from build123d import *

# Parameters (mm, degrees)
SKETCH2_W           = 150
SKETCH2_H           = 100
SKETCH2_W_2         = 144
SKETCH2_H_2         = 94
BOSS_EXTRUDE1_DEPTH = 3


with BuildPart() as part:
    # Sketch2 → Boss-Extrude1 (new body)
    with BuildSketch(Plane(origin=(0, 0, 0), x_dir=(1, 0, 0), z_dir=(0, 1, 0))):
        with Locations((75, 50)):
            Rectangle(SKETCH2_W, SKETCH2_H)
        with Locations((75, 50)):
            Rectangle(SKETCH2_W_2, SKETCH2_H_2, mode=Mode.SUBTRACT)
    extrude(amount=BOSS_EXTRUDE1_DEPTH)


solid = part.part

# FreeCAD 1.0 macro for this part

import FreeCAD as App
import Part
import Sketcher
Q = App.Units.Quantity

doc = App.newDocument("Part")
body = doc.addObject("PartDesign::Body", "Body")

# Sketch on XZ plane
sketch1 = body.newObject("Sketcher::SketchObject", "Sketch")
sketch1.AttachmentSupport = (doc.getObject("XZ_Plane"), [""])
sketch1.MapMode = "FlatFace"
sketch1.addGeometry(Part.LineSegment(App.Vector(0, -100, 0), App.Vector(0, 0, 0)), False)
sketch1.addGeometry(Part.LineSegment(App.Vector(0, 0, 0), App.Vector(150, 0, 0)), False)
sketch1.addGeometry(Part.LineSegment(App.Vector(150, 0, 0), App.Vector(150, -100, 0)), False)
sketch1.addGeometry(Part.LineSegment(App.Vector(150, -100, 0), App.Vector(0, -100, 0)), False)
sketch1.addGeometry(Part.LineSegment(App.Vector(147, -3, 0), App.Vector(3, -3, 0)), False)
sketch1.addGeometry(Part.LineSegment(App.Vector(3, -3, 0), App.Vector(3, -97, 0)), False)
sketch1.addGeometry(Part.LineSegment(App.Vector(3, -97, 0), App.Vector(147, -97, 0)), False)
sketch1.addGeometry(Part.LineSegment(App.Vector(147, -97, 0), App.Vector(147, -3, 0)), False)
sketch1.addConstraint(Sketcher.Constraint("Coincident", 0, 2, 1, 1))
sketch1.addConstraint(Sketcher.Constraint("Coincident", 1, 2, 2, 1))
sketch1.addConstraint(Sketcher.Constraint("Coincident", 2, 2, 3, 1))
sketch1.addConstraint(Sketcher.Constraint("Coincident", 3, 2, 0, 1))
sketch1.addConstraint(Sketcher.Constraint("Coincident", 4, 2, 5, 1))
sketch1.addConstraint(Sketcher.Constraint("Coincident", 5, 2, 6, 1))
sketch1.addConstraint(Sketcher.Constraint("Coincident", 6, 2, 7, 1))
sketch1.addConstraint(Sketcher.Constraint("Coincident", 7, 2, 4, 1))
sketch1.addConstraint(Sketcher.Constraint("Vertical", 0))
sketch1.addConstraint(Sketcher.Constraint("Horizontal", 1))
sketch1.addConstraint(Sketcher.Constraint("Vertical", 2))
sketch1.addConstraint(Sketcher.Constraint("Horizontal", 3))
sketch1.addConstraint(Sketcher.Constraint("Horizontal", 4))
sketch1.addConstraint(Sketcher.Constraint("Vertical", 5))
sketch1.addConstraint(Sketcher.Constraint("Horizontal", 6))
sketch1.addConstraint(Sketcher.Constraint("Vertical", 7))
sketch1.addConstraint(Sketcher.Constraint("Coincident", 0, 2, -1, 1))
sketch1.addConstraint(Sketcher.Constraint("DistanceX", 1, 1, 1, 2, Q("150 mm")))
sketch1.addConstraint(Sketcher.Constraint("DistanceX", 4, 2, 4, 1, Q("144 mm")))
sketch1.addConstraint(Sketcher.Constraint("DistanceY", 0, 1, 0, 2, Q("100 mm")))
sketch1.addConstraint(Sketcher.Constraint("DistanceY", 5, 2, 5, 1, Q("94 mm")))
sketch1.addConstraint(Sketcher.Constraint("DistanceX", -1, 1, 4, 2, Q("3 mm")))
sketch1.addConstraint(Sketcher.Constraint("DistanceY", 4, 2, -1, 1, Q("3 mm")))
pad1 = body.newObject("PartDesign::Pad", "Pad")
pad1.Profile = sketch1
pad1.Length = 3
pad1.Reversed = True

doc.recompute()
